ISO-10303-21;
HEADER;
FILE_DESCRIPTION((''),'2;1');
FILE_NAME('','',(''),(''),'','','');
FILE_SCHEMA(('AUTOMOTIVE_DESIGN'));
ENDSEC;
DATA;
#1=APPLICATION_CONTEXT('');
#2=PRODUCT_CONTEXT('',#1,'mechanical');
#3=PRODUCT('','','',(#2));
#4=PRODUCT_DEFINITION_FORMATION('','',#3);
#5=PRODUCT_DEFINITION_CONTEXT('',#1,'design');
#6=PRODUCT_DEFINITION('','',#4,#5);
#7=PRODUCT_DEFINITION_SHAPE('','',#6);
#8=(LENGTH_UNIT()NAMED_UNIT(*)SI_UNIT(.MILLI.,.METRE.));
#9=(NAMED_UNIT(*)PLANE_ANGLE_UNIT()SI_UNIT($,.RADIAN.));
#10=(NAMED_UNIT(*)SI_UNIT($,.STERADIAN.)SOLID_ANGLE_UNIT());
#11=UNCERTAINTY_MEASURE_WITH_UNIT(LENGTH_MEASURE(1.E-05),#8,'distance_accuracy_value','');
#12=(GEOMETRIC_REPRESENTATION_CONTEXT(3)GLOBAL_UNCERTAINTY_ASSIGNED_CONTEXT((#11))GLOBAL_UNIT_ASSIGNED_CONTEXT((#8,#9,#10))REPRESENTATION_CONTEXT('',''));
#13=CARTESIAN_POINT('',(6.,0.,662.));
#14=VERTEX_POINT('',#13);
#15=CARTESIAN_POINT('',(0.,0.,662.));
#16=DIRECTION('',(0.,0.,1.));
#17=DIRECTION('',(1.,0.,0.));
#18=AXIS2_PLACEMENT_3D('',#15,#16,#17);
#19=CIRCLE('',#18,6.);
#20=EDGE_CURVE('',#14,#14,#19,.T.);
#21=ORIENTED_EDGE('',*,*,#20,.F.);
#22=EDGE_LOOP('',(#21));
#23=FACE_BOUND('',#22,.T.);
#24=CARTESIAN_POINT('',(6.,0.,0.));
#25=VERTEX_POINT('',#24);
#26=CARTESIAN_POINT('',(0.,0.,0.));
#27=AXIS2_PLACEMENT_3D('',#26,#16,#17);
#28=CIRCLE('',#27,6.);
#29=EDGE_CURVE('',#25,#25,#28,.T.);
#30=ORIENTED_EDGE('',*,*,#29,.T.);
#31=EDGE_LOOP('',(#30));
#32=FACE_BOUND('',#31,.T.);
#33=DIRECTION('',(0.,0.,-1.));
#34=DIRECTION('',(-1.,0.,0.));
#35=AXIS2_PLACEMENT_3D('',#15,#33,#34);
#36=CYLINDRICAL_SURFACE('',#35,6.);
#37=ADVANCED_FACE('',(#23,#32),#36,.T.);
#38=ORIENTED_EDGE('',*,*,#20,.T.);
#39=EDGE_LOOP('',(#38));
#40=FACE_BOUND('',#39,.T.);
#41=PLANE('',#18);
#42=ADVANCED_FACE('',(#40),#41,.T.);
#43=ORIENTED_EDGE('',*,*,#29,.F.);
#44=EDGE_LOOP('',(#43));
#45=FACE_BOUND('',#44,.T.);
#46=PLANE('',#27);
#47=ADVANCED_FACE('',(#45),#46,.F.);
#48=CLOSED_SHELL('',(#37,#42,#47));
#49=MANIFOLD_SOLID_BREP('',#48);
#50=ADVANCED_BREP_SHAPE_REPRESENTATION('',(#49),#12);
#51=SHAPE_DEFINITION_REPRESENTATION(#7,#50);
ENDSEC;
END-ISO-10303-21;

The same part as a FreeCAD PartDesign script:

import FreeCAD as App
import Part
import Sketcher

doc = App.newDocument("Part")
body = doc.addObject("PartDesign::Body", "Body")

# Sketch on XY plane
sketch1 = doc.addObject("Sketcher::SketchObject", "Sketch")
body.addObject(sketch1)
sketch1.AttachmentSupport = (doc.XY_Plane, [""])
sketch1.MapMode = "FlatFace"
sketch1.addGeometry(Part.Circle(App.Vector(0, 0, 0), App.Vector(0, 0, 1), 6), False)
sketch1.addConstraint([
    Sketcher.Constraint("Coincident", 0, 3, -1, 1),
    Sketcher.Constraint("Diameter", 0, 12.0),
])
pad1 = doc.addObject("PartDesign::Pad", "Pad")
body.addObject(pad1)
pad1.Profile = sketch1
pad1.Length = 662

doc.recompute()
